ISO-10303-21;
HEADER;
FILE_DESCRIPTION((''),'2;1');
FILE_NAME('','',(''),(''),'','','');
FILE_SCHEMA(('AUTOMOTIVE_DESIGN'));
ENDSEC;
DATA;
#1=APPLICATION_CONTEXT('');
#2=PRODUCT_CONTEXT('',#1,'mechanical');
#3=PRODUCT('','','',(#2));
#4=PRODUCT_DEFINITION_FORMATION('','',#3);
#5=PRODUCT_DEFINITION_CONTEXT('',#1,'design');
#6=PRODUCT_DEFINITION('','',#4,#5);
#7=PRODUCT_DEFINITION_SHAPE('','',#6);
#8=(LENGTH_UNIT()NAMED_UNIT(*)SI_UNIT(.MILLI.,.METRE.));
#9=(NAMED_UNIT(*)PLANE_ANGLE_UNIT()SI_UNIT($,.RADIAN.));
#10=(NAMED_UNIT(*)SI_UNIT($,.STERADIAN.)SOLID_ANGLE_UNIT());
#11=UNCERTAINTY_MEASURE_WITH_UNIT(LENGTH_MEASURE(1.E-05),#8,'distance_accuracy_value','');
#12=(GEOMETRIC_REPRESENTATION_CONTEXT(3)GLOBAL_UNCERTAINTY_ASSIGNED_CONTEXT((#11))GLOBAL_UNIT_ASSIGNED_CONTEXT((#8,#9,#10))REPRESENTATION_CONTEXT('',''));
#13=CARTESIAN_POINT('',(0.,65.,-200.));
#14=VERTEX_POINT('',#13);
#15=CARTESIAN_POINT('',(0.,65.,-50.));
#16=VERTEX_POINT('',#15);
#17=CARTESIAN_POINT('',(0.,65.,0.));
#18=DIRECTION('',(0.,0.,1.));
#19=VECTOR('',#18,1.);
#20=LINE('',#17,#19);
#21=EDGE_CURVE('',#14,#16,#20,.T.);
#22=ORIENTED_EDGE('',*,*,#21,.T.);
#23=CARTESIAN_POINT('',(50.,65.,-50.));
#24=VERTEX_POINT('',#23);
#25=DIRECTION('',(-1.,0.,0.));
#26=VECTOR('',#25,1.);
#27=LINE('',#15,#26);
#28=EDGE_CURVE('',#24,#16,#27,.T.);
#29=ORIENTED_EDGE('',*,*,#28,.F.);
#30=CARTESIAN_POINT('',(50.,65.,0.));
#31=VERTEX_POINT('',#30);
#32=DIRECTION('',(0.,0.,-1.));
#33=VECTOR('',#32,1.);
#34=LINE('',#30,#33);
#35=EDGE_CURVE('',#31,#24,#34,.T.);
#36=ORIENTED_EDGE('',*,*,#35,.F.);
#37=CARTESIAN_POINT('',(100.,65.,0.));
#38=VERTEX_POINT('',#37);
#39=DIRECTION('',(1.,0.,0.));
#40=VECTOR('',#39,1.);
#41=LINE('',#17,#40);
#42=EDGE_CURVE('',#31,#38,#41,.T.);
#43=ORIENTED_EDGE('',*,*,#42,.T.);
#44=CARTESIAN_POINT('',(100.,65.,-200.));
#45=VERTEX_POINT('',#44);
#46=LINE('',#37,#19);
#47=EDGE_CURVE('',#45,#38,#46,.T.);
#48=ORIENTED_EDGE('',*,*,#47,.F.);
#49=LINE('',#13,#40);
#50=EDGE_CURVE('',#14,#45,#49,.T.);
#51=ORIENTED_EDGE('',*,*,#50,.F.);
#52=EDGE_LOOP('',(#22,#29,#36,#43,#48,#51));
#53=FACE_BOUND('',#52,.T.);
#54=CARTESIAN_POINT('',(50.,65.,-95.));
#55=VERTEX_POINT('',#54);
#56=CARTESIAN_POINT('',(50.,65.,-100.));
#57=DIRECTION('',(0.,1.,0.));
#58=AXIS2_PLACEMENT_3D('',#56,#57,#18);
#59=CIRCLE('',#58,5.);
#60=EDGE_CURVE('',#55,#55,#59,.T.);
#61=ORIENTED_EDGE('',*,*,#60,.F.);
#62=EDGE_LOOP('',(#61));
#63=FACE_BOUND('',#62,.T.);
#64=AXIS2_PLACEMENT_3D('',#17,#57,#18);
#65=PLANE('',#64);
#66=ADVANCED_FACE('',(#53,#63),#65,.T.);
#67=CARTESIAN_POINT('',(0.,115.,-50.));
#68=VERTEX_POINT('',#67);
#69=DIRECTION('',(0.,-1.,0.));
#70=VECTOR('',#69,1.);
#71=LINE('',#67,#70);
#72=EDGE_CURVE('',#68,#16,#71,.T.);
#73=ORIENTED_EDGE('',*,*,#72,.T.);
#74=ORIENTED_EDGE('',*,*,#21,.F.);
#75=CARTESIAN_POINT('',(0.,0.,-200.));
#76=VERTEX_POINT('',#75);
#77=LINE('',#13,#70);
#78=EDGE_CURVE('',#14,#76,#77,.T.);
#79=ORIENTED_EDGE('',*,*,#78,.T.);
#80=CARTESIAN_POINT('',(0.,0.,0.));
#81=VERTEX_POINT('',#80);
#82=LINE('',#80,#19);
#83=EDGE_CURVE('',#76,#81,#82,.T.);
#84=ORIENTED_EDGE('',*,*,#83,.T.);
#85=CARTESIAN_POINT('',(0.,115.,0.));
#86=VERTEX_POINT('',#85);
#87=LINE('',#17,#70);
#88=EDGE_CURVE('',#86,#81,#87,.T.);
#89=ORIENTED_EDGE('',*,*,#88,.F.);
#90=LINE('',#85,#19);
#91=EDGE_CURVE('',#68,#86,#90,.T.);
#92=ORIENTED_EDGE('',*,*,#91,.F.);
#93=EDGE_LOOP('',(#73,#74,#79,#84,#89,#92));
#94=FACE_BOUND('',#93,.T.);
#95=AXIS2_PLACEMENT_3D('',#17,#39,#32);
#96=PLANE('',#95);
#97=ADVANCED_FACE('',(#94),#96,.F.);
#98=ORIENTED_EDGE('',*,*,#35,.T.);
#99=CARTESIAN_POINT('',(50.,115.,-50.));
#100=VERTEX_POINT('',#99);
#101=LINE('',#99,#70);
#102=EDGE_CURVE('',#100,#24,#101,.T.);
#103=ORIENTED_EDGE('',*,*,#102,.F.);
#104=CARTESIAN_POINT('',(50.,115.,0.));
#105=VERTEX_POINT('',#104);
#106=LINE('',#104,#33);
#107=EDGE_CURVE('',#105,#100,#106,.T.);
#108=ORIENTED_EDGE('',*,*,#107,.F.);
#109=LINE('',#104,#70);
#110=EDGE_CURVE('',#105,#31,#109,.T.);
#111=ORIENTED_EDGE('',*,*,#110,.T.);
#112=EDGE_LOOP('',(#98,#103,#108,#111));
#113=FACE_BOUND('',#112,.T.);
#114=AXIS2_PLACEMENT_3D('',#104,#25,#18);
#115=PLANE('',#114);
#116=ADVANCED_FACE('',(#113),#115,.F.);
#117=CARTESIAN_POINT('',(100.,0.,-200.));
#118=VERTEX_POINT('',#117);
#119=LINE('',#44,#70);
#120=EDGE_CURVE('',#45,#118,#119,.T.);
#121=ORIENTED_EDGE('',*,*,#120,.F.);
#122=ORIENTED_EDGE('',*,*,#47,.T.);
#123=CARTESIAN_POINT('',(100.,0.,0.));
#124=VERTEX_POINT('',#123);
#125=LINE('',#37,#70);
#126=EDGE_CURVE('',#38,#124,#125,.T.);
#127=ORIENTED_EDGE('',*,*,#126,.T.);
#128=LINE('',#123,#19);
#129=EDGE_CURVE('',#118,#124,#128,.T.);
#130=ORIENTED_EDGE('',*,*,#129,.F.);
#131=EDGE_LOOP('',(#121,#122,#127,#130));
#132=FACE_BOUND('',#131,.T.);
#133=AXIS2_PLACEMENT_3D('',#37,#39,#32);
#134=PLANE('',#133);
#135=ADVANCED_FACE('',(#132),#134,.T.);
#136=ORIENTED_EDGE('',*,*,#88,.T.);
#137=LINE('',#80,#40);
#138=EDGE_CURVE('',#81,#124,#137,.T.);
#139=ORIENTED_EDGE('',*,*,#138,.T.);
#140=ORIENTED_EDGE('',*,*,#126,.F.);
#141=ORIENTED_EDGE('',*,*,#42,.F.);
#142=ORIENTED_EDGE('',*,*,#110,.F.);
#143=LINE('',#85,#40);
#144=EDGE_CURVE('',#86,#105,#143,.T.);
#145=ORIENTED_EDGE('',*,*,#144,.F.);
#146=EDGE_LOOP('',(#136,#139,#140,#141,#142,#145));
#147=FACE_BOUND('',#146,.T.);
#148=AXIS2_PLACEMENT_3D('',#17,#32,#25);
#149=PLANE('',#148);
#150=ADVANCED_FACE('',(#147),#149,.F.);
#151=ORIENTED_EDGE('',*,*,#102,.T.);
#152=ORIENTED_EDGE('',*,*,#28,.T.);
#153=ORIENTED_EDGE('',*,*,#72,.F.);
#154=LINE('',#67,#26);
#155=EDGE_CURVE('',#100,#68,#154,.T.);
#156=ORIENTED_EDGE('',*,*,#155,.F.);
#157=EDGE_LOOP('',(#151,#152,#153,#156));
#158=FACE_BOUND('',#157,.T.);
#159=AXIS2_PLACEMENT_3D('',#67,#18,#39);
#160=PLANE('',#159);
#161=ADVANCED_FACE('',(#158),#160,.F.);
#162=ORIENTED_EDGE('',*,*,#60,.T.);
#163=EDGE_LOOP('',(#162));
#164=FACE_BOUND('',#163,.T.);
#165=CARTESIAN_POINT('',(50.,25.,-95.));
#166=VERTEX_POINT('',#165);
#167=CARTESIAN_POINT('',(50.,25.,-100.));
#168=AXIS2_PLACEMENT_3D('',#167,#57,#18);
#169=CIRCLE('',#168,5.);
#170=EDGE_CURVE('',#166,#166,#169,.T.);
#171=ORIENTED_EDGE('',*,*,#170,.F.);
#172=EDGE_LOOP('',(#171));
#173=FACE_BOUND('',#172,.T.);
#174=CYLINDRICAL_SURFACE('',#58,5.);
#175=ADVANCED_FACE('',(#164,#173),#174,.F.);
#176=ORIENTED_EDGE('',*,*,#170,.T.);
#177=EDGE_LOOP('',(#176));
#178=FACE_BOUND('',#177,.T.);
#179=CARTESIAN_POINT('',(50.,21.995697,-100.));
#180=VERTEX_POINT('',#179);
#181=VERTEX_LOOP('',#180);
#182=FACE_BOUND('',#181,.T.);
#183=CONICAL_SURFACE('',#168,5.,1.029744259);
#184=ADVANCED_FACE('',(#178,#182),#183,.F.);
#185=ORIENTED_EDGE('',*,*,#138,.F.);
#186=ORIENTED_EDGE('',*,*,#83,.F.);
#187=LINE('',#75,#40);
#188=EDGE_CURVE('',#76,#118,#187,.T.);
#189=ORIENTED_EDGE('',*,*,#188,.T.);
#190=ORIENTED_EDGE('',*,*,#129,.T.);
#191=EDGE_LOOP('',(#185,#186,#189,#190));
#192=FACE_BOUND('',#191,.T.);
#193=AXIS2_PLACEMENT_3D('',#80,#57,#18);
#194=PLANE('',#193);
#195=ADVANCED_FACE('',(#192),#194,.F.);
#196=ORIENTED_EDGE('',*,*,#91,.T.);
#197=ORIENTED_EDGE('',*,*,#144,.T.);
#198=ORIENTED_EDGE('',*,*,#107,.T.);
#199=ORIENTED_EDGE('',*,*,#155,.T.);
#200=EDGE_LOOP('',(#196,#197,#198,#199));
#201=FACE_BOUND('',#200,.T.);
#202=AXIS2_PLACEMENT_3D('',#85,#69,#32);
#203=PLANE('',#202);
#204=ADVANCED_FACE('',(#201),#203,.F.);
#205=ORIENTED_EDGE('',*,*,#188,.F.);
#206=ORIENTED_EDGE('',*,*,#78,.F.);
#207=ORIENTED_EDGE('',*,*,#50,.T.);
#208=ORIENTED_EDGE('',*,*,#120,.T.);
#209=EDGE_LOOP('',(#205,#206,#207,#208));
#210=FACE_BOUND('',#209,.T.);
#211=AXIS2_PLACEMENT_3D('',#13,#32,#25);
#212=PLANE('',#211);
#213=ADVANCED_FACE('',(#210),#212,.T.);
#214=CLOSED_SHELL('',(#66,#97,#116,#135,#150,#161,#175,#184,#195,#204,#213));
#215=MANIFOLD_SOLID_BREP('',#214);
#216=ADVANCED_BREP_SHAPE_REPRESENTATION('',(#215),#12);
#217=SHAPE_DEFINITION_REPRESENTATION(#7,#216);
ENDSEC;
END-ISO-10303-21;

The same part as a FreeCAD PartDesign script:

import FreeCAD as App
import Part
import Sketcher
from FreeCAD import Vector


def add_polygon(sketch, points):
    """Adds a closed chain of lines whose ends are joined by coincident constraints."""
    first, n = sketch.GeometryCount, len(points)
    for a, b in zip(points, points[1:] + points[:1]):
        sketch.addGeometry(Part.LineSegment(App.Vector(*a, 0), App.Vector(*b, 0)), False)
    for i in range(n):
        sketch.addConstraint(Sketcher.Constraint("Coincident", first + i, 2, first + (i + 1) % n, 1))

doc = App.newDocument("Part")
params = doc.addObject("Spreadsheet::Sheet", "Params")
for row, (alias, value) in enumerate([
    ("sketch1_width", "100 mm"),
    ("sketch1_height", "200 mm"),
    ("pad1_length", "65 mm"),
    ("sketch2_diameter", "10 mm"),
    ("hole_diameter", "10 mm"),
    ("hole_depth", "40 mm"),
    ("sketch3_width", "50 mm"),
    ("pad2_length", "50 mm"),
], start=1):
    params.set(f"A{row}", alias)
    params.set(f"B{row}", "=" + value)
    params.setAlias(f"B{row}", alias)

body = doc.addObject("PartDesign::Body", "Body")

# Sketch on XZ plane
sketch1 = doc.addObject("Sketcher::SketchObject", "Sketch")
body.addObject(sketch1)
sketch1.AttachmentSupport = (doc.XZ_Plane, [""])
sketch1.MapMode = "FlatFace"
add_polygon(sketch1, [(0, -200), (0, 0), (100, 0), (100, -200)])  # lines 0-3
sketch1.addConstraint([
    Sketcher.Constraint("Vertical", 0),
    Sketcher.Constraint("Horizontal", 1),
    Sketcher.Constraint("Vertical", 2),
    Sketcher.Constraint("Horizontal", 3),
    Sketcher.Constraint("Coincident", 0, 2, -1, 1),
    Sketcher.Constraint("DistanceX", 1, 1, 1, 2, 100.0),
    Sketcher.Constraint("DistanceY", 0, 1, 0, 2, 200.0),
])
sketch1.setExpression("Constraints[9]", "Params.sketch1_width")
sketch1.setExpression("Constraints[10]", "Params.sketch1_height")
pad1 = doc.addObject("PartDesign::Pad", "Pad")
body.addObject(pad1)
pad1.Profile = sketch1
pad1.setExpression("Length", "Params.pad1_length")
pad1.Reversed = True

# Sketch on XZ plane
sketch2 = doc.addObject("Sketcher::SketchObject", "Sketch001")
body.addObject(sketch2)
sketch2.AttachmentSupport = (doc.XZ_Plane, [""])
sketch2.MapMode = "FlatFace"
sketch2.AttachmentOffset = App.Placement(Vector(0, 0, -65), App.Rotation())
sketch2.addGeometry(Part.Circle(Vector(50, -100, 0), Vector(0, 0, 1), 5), False)
sketch2.addConstraint([
    Sketcher.Constraint("Diameter", 0, 10.0),
    Sketcher.Constraint("DistanceX", -1, 1, 0, 3, 50.0),
    Sketcher.Constraint("DistanceY", 0, 3, -1, 1, 100.0),
])
sketch2.setExpression("Constraints[0]", "Params.sketch2_diameter")
doc.recompute()
hole = doc.addObject("PartDesign::Hole", "Hole")
body.addObject(hole)
hole.Profile = sketch2
hole.ThreadType = "None"
hole.setExpression("Diameter", "Params.hole_diameter")
hole.DepthType = "Dimension"
hole.setExpression("Depth", "Params.hole_depth")
hole.DrillPoint = "Angled"
hole.DrillPointAngle = 118
hole.Reversed = True

# Sketch on XZ plane
sketch3 = doc.addObject("Sketcher::SketchObject", "Sketch002")
body.addObject(sketch3)
sketch3.AttachmentSupport = (doc.XZ_Plane, [""])
sketch3.MapMode = "FlatFace"
sketch3.AttachmentOffset = App.Placement(Vector(0, 0, -65), App.Rotation())
add_polygon(sketch3, [(0, -50), (0, 0), (50, 0), (50, -50)])  # lines 0-3
sketch3.addConstraint([
    Sketcher.Constraint("Vertical", 0),
    Sketcher.Constraint("Horizontal", 1),
    Sketcher.Constraint("Vertical", 2),
    Sketcher.Constraint("Horizontal", 3),
    Sketcher.Constraint("Coincident", 0, 2, -1, 1),
    Sketcher.Constraint("Equal", 3, 0),
    Sketcher.Constraint("DistanceX", 1, 1, 1, 2, 50.0),
])
sketch3.setExpression("Constraints[10]", "Params.sketch3_width")
pad2 = doc.addObject("PartDesign::Pad", "Pad001")
body.addObject(pad2)
pad2.Profile = sketch3
pad2.setExpression("Length", "Params.pad2_length")
pad2.Reversed = True

doc.recompute()
